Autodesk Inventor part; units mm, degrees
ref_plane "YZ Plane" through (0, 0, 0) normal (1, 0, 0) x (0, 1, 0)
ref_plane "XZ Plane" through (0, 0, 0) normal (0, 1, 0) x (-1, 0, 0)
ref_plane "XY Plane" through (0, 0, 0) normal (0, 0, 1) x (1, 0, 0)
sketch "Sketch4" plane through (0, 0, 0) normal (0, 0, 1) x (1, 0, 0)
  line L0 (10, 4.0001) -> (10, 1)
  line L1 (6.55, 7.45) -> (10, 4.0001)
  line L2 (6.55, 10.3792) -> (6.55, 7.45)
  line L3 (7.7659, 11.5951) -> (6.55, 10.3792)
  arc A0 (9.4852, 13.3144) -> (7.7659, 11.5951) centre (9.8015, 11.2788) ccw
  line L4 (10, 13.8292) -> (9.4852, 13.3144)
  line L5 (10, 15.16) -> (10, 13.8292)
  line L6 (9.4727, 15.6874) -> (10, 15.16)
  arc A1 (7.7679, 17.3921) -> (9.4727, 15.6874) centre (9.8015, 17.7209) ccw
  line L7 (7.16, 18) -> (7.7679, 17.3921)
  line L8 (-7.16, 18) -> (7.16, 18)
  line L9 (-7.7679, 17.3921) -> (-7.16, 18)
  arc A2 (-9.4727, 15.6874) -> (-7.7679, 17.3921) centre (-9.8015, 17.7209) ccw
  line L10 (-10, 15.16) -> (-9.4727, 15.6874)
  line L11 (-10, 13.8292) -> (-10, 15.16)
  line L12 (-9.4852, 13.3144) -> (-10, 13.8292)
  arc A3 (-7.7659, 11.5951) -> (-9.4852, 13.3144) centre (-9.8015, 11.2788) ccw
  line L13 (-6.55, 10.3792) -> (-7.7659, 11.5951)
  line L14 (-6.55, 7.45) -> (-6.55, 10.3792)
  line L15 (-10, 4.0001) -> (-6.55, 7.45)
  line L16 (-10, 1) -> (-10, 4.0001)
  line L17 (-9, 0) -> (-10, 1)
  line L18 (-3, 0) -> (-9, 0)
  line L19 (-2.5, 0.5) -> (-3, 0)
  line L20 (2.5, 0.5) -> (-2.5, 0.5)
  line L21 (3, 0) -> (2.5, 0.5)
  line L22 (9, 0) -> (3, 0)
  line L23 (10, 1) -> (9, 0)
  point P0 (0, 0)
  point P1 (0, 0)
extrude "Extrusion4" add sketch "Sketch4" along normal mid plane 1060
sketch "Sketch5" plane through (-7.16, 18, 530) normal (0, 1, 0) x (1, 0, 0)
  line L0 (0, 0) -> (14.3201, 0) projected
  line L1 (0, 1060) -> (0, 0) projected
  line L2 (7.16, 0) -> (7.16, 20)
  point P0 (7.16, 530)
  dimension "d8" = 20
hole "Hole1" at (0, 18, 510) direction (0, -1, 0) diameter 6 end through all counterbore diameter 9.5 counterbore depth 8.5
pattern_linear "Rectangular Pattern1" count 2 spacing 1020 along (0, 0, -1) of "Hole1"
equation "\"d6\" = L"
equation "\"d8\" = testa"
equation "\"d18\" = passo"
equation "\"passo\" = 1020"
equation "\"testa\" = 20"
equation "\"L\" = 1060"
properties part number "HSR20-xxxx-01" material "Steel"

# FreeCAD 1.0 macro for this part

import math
import FreeCAD as App
import Part
import Sketcher
from FreeCAD import Vector
Q = App.Units.Quantity

doc = App.newDocument("Part")
params = doc.addObject("Spreadsheet::Sheet", "Params")
for row, (alias, value) in enumerate([
    ("sketch1_width", "6 mm"),
    ("sketch1_width2", "5 mm"),
    ("sketch1_height", "3 mm"),
    ("sketch1_radius", "2.06 mm"),
    ("sketch1_width3", "14.32 mm"),
    ("pad1_length", "1060 mm"),
    ("sketch2_diameter", "6 mm"),
    ("hole_diameter", "6 mm"),
    ("hole_cbore_diameter", "9.5 mm"),
    ("hole_cbore_depth", "8.5 mm"),
    ("linearpattern_pitch", "1020 mm"),
], start=1):
    params.set(f"A{row}", alias)
    params.set(f"B{row}", "=" + value)
    params.setAlias(f"B{row}", alias)

body = doc.addObject("PartDesign::Body", "Body")

# Sketch on XY plane
sketch1 = body.newObject("Sketcher::SketchObject", "Sketch")
sketch1.AttachmentSupport = (doc.getObject("XY_Plane"), [""])
sketch1.MapMode = "FlatFace"
sketch1.addGeometry([
    Part.LineSegment(Vector(10, 1, 0), Vector(10, 4, 0)),  # 0
    Part.LineSegment(Vector(10, 4, 0), Vector(6.5, 7.5, 0)),  # 1
    Part.LineSegment(Vector(6.5, 7.5, 0), Vector(6.5, 10.4, 0)),  # 2
    Part.LineSegment(Vector(6.5, 10.4, 0), Vector(7.8, 11.6, 0)),  # 3
    Part.ArcOfCircle(Part.Circle(Vector(9.8, 11.3, 0), Vector(0, 0, 1), 2.1), math.radians(99), math.radians(171)),  # 4
    Part.LineSegment(Vector(9.5, 13.3, 0), Vector(10, 13.8, 0)),  # 5
    Part.LineSegment(Vector(10, 13.8, 0), Vector(10, 15.2, 0)),  # 6
    Part.LineSegment(Vector(10, 15.2, 0), Vector(9.5, 15.7, 0)),  # 7
    Part.ArcOfCircle(Part.Circle(Vector(9.8, 17.7, 0), Vector(0, 0, 1), 2.1), math.radians(-171), math.radians(-99)),  # 8
    Part.LineSegment(Vector(7.8, 17.4, 0), Vector(7.2, 18, 0)),  # 9
    Part.LineSegment(Vector(7.2, 18, 0), Vector(-7.2, 18, 0)),  # 10
    Part.LineSegment(Vector(-7.2, 18, 0), Vector(-7.8, 17.4, 0)),  # 11
    Part.ArcOfCircle(Part.Circle(Vector(-9.8, 17.7, 0), Vector(0, 0, 1), 2.1), math.radians(-81), math.radians(-9)),  # 12
    Part.LineSegment(Vector(-9.5, 15.7, 0), Vector(-10, 15.2, 0)),  # 13
    Part.LineSegment(Vector(-10, 15.2, 0), Vector(-10, 13.8, 0)),  # 14
    Part.LineSegment(Vector(-10, 13.8, 0), Vector(-9.5, 13.3, 0)),  # 15
    Part.ArcOfCircle(Part.Circle(Vector(-9.8, 11.3, 0), Vector(0, 0, 1), 2.1), math.radians(9), math.radians(81)),  # 16
    Part.LineSegment(Vector(-7.8, 11.6, 0), Vector(-6.5, 10.4, 0)),  # 17
    Part.LineSegment(Vector(-6.5, 10.4, 0), Vector(-6.5, 7.5, 0)),  # 18
    Part.LineSegment(Vector(-6.5, 7.5, 0), Vector(-10, 4, 0)),  # 19
    Part.LineSegment(Vector(-10, 4, 0), Vector(-10, 1, 0)),  # 20
    Part.LineSegment(Vector(-10, 1, 0), Vector(-9, 0, 0)),  # 21
    Part.LineSegment(Vector(-9, 0, 0), Vector(-3, 0, 0)),  # 22
    Part.LineSegment(Vector(-3, 0, 0), Vector(-2.5, 0.5, 0)),  # 23
    Part.LineSegment(Vector(-2.5, 0.5, 0), Vector(2.5, 0.5, 0)),  # 24
    Part.LineSegment(Vector(2.5, 0.5, 0), Vector(3, 0, 0)),  # 25
    Part.LineSegment(Vector(3, 0, 0), Vector(9, 0, 0)),  # 26
    Part.LineSegment(Vector(9, 0, 0), Vector(10, 1, 0)),  # 27
], False)
sketch1.addConstraint([
    Sketcher.Constraint("Coincident", 0, 2, 1, 1),
    Sketcher.Constraint("Coincident", 1, 2, 2, 1),
    Sketcher.Constraint("Coincident", 2, 2, 3, 1),
    Sketcher.Constraint("Coincident", 3, 2, 4, 2),
    Sketcher.Constraint("Coincident", 4, 1, 5, 1),
    Sketcher.Constraint("Coincident", 5, 2, 6, 1),
    Sketcher.Constraint("Coincident", 6, 2, 7, 1),
    Sketcher.Constraint("Coincident", 7, 2, 8, 2),
    Sketcher.Constraint("Coincident", 8, 1, 9, 1),
    Sketcher.Constraint("Coincident", 9, 2, 10, 1),
    Sketcher.Constraint("Coincident", 10, 2, 11, 1),
    Sketcher.Constraint("Coincident", 11, 2, 12, 2),
    Sketcher.Constraint("Coincident", 12, 1, 13, 1),
    Sketcher.Constraint("Coincident", 13, 2, 14, 1),
    Sketcher.Constraint("Coincident", 14, 2, 15, 1),
    Sketcher.Constraint("Coincident", 15, 2, 16, 2),
    Sketcher.Constraint("Coincident", 16, 1, 17, 1),
    Sketcher.Constraint("Coincident", 17, 2, 18, 1),
    Sketcher.Constraint("Coincident", 18, 2, 19, 1),
    Sketcher.Constraint("Coincident", 19, 2, 20, 1),
    Sketcher.Constraint("Coincident", 20, 2, 21, 1),
    Sketcher.Constraint("Coincident", 21, 2, 22, 1),
    Sketcher.Constraint("Coincident", 22, 2, 23, 1),
    Sketcher.Constraint("Coincident", 23, 2, 24, 1),
    Sketcher.Constraint("Coincident", 24, 2, 25, 1),
    Sketcher.Constraint("Coincident", 25, 2, 26, 1),
    Sketcher.Constraint("Coincident", 26, 2, 27, 1),
    Sketcher.Constraint("Coincident", 27, 2, 0, 1),
    Sketcher.Constraint("Vertical", 0),
    Sketcher.Constraint("Vertical", 2),
    Sketcher.Constraint("Vertical", 6),
    Sketcher.Constraint("Horizontal", 10),
    Sketcher.Constraint("Vertical", 14),
    Sketcher.Constraint("Vertical", 18),
    Sketcher.Constraint("Vertical", 20),
    Sketcher.Constraint("Horizontal", 22),
    Sketcher.Constraint("Horizontal", 24),
    Sketcher.Constraint("Horizontal", 26),
    Sketcher.Constraint("Equal", 4, 8),
    Sketcher.Constraint("Equal", 8, 12),
    Sketcher.Constraint("Equal", 12, 16),
    Sketcher.Constraint("Symmetric", 22, 2, 25, 2, -1, 1),
    Sketcher.Constraint("Symmetric", 8, 3, 12, 3, -2),
    Sketcher.Constraint("Symmetric", 4, 3, 16, 3, -2),
    Sketcher.Constraint("Symmetric", 6, 2, 13, 2, -2),
    Sketcher.Constraint("Symmetric", 2, 2, 17, 2, -2),
    Sketcher.Constraint("Symmetric", 0, 2, 19, 2, -2),
    Sketcher.Constraint("Symmetric", 21, 2, 26, 2, -2),
    Sketcher.Constraint("Perpendicular", 1, 3),
    Sketcher.Constraint("Parallel", 3, 5),
    Sketcher.Constraint("Perpendicular", 5, 7),
    Sketcher.Constraint("Parallel", 7, 9),
    Sketcher.Constraint("Perpendicular", 9, 11),
    Sketcher.Constraint("Parallel", 11, 13),
    Sketcher.Constraint("Perpendicular", 13, 15),
    Sketcher.Constraint("Parallel", 15, 17),
    Sketcher.Constraint("Perpendicular", 17, 19),
    Sketcher.Constraint("Perpendicular", 19, 21),
    Sketcher.Constraint("Perpendicular", 21, 23),
    Sketcher.Constraint("Perpendicular", 23, 25),
    Sketcher.Constraint("Perpendicular", 25, 27),
    Sketcher.Constraint("Horizontal", 8, 1, 11, 2),
    Sketcher.Constraint("Horizontal", 7, 2, 12, 1),
    Sketcher.Constraint("Horizontal", 5, 2, 14, 2),
    Sketcher.Constraint("Vertical", 4, 3, 8, 3),
    Sketcher.Constraint("Vertical", 0, 2, 5, 2),
    Sketcher.Constraint("DistanceX", 22, 1, 22, 2, Q("6 mm")),
    Sketcher.Constraint("DistanceX", 24, 1, 24, 2, Q("5 mm")),
    Sketcher.Constraint("DistanceY", 0, 1, 0, 2, Q("3 mm")),
    Sketcher.Constraint("Radius", 4, Q("2.06 mm")),
    Sketcher.Constraint("DistanceX", -1, 1, 0, 2, Q("10 mm")),
    Sketcher.Constraint("DistanceY", -1, 1, 0, 2, Q("4 mm")),
    Sketcher.Constraint("DistanceY", -1, 1, 9, 2, Q("18 mm")),
    Sketcher.Constraint("DistanceX", 10, 2, 10, 1, Q("14.32 mm")),
    Sketcher.Constraint("DistanceX", -1, 1, 1, 2, Q("6.55 mm")),
    Sketcher.Constraint("DistanceY", -1, 1, 6, 2, Q("15.16 mm")),
    Sketcher.Constraint("DistanceY", 2, 2, 5, 2, Q("3.45 mm")),
    Sketcher.Constraint("Distance", 5, Q("0.728 mm")),
    Sketcher.Constraint("DistanceY", 2, 1, 2, 2, Q("2.9292 mm")),
    Sketcher.Constraint("DistanceY", -1, 1, 8, 3, Q("17.721 mm")),
    Sketcher.Constraint("DistanceX", -1, 1, 3, 2, Q("7.766 mm")),
])
sketch1.setExpression("Constraints[66]", "Params.sketch1_width")
sketch1.setExpression("Constraints[67]", "Params.sketch1_width2")
sketch1.setExpression("Constraints[68]", "Params.sketch1_height")
sketch1.setExpression("Constraints[69]", "Params.sketch1_radius")
sketch1.setExpression("Constraints[73]", "Params.sketch1_width3")
pad1 = body.newObject("PartDesign::Pad", "Pad")
pad1.Profile = sketch1
pad1.setExpression("Length", "Params.pad1_length")
pad1.Midplane = True

# Sketch on XZ plane
sketch2 = body.newObject("Sketcher::SketchObject", "Sketch001")
sketch2.AttachmentSupport = (doc.getObject("XZ_Plane"), [""])
sketch2.MapMode = "FlatFace"
sketch2.AttachmentOffset = App.Placement(Vector(0, 0, -18), App.Rotation())
sketch2.addGeometry(Part.Circle(Vector(0, 510, 0), Vector(0, 0, 1), 3), False)
sketch2.addConstraint([
    Sketcher.Constraint("PointOnObject", 0, 3, -2),
    Sketcher.Constraint("Diameter", 0, Q("6 mm")),
    Sketcher.Constraint("DistanceY", -1, 1, 0, 3, Q("510 mm")),
])
sketch2.setExpression("Constraints[1]", "Params.sketch2_diameter")
doc.recompute()
hole = body.newObject("PartDesign::Hole", "Hole")
hole.Profile = sketch2
hole.ThreadType = "None"
hole.setExpression("Diameter", "Params.hole_diameter")
hole.DepthType = "ThroughAll"
hole.HoleCutType = "Counterbore"
hole.setExpression("HoleCutDiameter", "Params.hole_cbore_diameter")
hole.setExpression("HoleCutDepth", "Params.hole_cbore_depth")
hole.Reversed = True
doc.recompute()

linearpattern = body.newObject("PartDesign::LinearPattern", "LinearPattern")
linearpattern.Originals = [hole]
linearpattern.Direction = (doc.getObject("Z_Axis"), [""])
linearpattern.Mode = "offset"
linearpattern.setExpression("Offset", "Params.linearpattern_pitch")
linearpattern.Occurrences = 2
linearpattern.Reversed = True
body.Tip = linearpattern

doc.recompute()
